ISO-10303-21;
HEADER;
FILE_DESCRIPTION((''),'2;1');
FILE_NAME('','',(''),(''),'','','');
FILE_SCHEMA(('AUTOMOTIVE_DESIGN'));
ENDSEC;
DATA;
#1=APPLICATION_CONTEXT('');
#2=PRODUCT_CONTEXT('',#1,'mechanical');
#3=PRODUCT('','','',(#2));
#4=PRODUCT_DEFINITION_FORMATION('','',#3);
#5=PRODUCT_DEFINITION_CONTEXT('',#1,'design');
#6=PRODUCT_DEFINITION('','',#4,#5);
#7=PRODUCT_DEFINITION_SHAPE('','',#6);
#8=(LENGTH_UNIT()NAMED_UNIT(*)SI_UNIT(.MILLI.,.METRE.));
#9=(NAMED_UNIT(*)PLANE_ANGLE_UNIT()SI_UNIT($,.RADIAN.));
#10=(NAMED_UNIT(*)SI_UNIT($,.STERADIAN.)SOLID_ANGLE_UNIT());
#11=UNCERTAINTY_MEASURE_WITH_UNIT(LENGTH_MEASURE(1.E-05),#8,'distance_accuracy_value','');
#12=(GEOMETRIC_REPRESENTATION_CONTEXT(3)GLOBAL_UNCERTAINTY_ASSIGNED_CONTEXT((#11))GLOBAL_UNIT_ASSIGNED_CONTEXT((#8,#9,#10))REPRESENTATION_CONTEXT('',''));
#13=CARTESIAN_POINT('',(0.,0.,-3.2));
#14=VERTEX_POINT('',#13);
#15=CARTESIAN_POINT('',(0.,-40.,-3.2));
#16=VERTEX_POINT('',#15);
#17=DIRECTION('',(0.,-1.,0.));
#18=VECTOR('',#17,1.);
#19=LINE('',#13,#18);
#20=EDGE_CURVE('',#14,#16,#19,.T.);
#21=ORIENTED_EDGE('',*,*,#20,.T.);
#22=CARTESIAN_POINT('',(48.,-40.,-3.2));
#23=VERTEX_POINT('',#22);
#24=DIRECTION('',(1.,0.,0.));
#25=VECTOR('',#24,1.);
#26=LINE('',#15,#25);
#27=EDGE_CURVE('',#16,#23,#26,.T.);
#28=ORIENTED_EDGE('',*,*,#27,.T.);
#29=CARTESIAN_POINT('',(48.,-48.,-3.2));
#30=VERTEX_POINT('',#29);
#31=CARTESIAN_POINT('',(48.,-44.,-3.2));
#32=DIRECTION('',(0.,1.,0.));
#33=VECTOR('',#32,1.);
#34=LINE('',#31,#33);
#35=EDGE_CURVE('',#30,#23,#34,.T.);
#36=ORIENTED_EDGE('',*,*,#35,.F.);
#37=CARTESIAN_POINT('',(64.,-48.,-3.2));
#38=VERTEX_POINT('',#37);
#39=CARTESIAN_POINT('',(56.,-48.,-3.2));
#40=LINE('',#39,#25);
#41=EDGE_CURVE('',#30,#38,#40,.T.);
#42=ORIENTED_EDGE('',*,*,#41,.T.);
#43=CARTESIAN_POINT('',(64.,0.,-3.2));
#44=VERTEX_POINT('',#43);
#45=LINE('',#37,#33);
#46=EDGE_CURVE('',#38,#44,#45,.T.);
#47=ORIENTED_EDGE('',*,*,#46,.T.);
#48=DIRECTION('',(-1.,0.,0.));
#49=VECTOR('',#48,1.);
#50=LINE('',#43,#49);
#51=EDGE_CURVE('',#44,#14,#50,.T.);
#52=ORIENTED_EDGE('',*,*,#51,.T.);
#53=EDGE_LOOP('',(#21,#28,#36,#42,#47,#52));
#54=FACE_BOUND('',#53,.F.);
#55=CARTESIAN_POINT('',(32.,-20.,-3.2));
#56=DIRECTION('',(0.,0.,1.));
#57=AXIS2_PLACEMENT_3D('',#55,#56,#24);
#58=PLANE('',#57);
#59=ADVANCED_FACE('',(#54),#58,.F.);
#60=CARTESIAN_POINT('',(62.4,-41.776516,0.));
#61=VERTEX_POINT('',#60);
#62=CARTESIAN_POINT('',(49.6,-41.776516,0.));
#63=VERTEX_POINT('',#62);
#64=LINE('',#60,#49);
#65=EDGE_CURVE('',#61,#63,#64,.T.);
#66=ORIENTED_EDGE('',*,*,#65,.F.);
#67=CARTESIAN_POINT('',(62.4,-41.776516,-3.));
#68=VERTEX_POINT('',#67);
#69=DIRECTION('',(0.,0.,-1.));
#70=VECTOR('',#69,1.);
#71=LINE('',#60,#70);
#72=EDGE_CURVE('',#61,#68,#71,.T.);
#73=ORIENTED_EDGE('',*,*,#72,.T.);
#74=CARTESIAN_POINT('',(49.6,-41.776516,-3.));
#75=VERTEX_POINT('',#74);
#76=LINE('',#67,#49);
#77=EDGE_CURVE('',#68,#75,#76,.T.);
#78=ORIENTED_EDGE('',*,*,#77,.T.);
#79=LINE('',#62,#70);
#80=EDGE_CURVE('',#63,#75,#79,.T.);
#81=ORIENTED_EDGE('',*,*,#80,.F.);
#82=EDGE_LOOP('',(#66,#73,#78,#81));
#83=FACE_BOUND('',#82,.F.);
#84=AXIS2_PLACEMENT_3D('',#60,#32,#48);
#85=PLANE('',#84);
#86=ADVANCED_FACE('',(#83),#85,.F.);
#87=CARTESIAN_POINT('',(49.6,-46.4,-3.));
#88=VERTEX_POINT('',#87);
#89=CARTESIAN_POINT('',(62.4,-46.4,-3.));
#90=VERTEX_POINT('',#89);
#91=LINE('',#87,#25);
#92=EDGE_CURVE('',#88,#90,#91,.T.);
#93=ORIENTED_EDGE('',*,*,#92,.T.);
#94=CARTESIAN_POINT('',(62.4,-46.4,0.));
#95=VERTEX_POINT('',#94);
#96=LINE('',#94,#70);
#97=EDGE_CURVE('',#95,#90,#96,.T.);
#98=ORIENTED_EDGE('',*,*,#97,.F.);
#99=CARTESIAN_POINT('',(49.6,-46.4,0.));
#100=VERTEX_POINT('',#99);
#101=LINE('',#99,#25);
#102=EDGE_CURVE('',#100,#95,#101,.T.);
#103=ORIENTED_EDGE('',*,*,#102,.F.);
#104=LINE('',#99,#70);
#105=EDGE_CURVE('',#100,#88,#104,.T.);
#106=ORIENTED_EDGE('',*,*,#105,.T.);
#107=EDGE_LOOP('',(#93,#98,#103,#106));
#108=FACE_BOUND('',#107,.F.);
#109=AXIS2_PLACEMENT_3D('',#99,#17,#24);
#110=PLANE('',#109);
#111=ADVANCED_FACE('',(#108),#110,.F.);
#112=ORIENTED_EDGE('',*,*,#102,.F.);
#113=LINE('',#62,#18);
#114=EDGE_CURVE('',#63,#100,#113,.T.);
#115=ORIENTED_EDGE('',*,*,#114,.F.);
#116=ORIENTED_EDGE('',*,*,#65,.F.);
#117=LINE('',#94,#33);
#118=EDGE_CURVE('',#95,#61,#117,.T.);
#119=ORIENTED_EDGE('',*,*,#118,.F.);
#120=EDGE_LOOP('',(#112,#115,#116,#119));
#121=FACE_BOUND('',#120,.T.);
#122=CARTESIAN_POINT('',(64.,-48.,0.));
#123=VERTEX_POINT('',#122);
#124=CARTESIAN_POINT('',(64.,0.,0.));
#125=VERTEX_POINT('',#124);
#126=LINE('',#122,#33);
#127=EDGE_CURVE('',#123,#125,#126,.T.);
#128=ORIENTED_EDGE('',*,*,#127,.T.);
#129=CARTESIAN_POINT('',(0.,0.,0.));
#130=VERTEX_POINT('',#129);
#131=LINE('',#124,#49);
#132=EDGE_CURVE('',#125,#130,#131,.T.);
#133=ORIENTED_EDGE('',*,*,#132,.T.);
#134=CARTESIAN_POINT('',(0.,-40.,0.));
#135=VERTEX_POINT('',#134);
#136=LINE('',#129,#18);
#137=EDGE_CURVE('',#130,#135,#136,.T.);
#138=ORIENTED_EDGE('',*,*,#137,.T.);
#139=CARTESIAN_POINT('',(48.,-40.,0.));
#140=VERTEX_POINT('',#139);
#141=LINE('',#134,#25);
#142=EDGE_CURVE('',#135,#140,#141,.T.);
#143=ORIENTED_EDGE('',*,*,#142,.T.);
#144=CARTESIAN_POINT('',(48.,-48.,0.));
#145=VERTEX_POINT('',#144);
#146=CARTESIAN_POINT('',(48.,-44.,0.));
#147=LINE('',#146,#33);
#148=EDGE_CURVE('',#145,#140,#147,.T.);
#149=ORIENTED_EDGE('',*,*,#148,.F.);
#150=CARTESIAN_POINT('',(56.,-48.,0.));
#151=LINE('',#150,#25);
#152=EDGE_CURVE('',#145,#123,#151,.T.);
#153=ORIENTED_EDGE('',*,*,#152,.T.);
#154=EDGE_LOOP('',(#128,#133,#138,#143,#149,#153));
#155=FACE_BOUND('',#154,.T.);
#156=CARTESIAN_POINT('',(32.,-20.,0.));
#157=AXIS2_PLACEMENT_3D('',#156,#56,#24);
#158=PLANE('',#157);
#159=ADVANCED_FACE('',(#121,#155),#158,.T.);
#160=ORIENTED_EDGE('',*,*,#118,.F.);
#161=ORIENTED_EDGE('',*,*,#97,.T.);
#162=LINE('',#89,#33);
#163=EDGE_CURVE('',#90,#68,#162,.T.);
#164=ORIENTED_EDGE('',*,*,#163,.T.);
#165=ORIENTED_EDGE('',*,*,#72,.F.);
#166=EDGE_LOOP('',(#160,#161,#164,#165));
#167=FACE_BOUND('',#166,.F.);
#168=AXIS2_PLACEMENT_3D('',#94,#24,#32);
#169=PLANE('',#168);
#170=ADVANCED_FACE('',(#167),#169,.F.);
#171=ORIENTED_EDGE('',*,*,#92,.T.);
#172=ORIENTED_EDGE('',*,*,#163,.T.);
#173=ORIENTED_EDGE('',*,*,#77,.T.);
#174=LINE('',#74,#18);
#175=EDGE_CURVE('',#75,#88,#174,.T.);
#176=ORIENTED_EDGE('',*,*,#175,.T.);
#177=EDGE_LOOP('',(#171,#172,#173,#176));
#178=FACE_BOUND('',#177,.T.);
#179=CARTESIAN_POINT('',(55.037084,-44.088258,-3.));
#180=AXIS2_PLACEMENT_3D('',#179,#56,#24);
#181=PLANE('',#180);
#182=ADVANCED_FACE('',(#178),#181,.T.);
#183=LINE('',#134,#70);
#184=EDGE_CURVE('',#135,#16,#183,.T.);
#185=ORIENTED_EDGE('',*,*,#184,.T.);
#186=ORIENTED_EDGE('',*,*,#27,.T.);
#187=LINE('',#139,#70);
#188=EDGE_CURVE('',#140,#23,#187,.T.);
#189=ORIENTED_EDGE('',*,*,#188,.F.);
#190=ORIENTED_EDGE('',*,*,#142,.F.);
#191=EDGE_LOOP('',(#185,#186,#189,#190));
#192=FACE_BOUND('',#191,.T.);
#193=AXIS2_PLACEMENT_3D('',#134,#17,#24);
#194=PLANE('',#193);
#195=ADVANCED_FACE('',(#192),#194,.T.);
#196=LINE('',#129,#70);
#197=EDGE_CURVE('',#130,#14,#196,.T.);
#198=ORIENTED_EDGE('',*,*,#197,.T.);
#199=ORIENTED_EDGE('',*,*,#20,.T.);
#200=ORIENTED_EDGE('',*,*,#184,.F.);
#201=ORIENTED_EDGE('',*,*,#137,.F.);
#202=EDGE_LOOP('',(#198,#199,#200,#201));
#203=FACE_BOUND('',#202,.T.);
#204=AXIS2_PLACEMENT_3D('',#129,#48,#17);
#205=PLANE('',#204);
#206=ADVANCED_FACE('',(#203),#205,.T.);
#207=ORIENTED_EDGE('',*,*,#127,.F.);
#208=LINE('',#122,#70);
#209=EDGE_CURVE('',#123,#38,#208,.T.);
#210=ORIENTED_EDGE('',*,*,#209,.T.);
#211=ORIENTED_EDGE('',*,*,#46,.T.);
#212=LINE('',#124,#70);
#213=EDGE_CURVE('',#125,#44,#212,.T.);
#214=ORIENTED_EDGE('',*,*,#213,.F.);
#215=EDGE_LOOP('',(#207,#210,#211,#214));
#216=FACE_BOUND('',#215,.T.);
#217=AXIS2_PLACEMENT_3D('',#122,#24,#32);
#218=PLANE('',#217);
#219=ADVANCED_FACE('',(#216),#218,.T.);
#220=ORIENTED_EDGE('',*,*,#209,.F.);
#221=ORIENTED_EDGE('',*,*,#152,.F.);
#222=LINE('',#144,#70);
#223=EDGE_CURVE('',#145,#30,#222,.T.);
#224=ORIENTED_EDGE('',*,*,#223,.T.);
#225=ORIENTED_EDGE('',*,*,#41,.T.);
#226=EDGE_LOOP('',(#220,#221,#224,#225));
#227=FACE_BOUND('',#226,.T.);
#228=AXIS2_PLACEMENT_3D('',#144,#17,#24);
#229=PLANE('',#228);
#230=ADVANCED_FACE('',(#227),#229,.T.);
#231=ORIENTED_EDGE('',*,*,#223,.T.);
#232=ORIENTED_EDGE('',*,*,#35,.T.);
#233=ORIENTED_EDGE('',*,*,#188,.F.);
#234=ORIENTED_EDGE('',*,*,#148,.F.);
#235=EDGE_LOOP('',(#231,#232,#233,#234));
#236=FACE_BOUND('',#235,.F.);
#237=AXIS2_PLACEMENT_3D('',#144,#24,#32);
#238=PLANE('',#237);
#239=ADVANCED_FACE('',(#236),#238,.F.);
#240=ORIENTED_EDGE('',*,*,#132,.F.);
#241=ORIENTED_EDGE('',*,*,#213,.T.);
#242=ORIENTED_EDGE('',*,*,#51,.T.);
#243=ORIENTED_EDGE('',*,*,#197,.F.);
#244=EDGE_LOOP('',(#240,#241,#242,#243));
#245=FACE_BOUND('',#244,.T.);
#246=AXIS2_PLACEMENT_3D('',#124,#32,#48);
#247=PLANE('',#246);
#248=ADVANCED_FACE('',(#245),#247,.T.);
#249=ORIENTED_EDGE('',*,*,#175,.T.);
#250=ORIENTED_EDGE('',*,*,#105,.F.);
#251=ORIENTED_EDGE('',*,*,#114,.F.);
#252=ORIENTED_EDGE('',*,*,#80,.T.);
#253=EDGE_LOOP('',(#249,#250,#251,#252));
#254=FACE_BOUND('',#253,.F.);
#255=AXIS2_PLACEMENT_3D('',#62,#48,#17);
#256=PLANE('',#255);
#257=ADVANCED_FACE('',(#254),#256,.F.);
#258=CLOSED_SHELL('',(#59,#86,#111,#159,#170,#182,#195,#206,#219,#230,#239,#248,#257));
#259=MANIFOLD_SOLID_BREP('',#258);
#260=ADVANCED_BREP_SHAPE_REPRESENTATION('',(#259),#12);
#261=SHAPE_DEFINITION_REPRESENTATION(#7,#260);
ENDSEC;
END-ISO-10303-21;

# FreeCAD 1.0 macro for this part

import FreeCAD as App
import Part
import Sketcher

V = App.Vector


def add_polygon(sketch, points):
    """Adds a closed chain of lines whose ends are joined by coincident constraints."""
    first, n = sketch.GeometryCount, len(points)
    for a, b in zip(points, points[1:] + points[:1]):
        sketch.addGeometry(Part.LineSegment(App.Vector(*a, 0), App.Vector(*b, 0)), False)
    for i in range(n):
        sketch.addConstraint(Sketcher.Constraint("Coincident", first + i, 2, first + (i + 1) % n, 1))

doc = App.newDocument("Part")
params = doc.addObject("Spreadsheet::Sheet", "Params")
for row, (alias, value) in enumerate([
    ("sketch1_width", "64 mm"),
    ("sketch1_width2", "48 mm"),
    ("sketch1_height", "40 mm"),
    ("pad1_length", "3.2 mm"),
    ("sketch2_width", "12.8 mm"),
    ("pocket1_length", "3 mm"),
], start=1):
    params.set(f"A{row}", alias)
    params.set(f"B{row}", "=" + value)
    params.setAlias(f"B{row}", alias)

body = doc.addObject("PartDesign::Body", "Body")

# Sketch on XY plane
sketch1 = doc.addObject("Sketcher::SketchObject", "Sketch")
body.addObject(sketch1)
sketch1.AttachmentSupport = (doc.XY_Plane, [""])
sketch1.MapMode = "FlatFace"
add_polygon(sketch1, [(64, 0), (0, 0), (0, -40), (48, -40), (48, -48), (64, -48)])  # lines 0-5
sketch1.addConstraint([
    Sketcher.Constraint("Horizontal", 0),
    Sketcher.Constraint("Vertical", 1),
    Sketcher.Constraint("Horizontal", 2),
    Sketcher.Constraint("Vertical", 3),
    Sketcher.Constraint("Horizontal", 4),
    Sketcher.Constraint("Vertical", 5),
    Sketcher.Constraint("Coincident", 0, 2, -1, 1),
    Sketcher.Constraint("Equal", 2, 5),
    Sketcher.Constraint("DistanceX", 0, 2, 0, 1, 64.0),
    Sketcher.Constraint("DistanceX", 2, 1, 2, 2, 48.0),
    Sketcher.Constraint("DistanceY", 1, 2, 1, 1, 40.0),
])
sketch1.setExpression("Constraints[14]", "Params.sketch1_width")
sketch1.setExpression("Constraints[15]", "Params.sketch1_width2")
sketch1.setExpression("Constraints[16]", "Params.sketch1_height")
pad1 = doc.addObject("PartDesign::Pad", "Pad")
body.addObject(pad1)
pad1.Profile = sketch1
pad1.setExpression("Length", "Params.pad1_length")
pad1.Reversed = True

# Sketch on XY plane
sketch2 = doc.addObject("Sketcher::SketchObject", "Sketch001")
body.addObject(sketch2)
sketch2.AttachmentSupport = (doc.XY_Plane, [""])
sketch2.MapMode = "FlatFace"
add_polygon(sketch2, [(49.6, -46.4), (62.4, -46.4), (62.4, -41.8), (49.6, -41.8)])  # lines 0-3
sketch2.addConstraint([
    Sketcher.Constraint("Horizontal", 0),
    Sketcher.Constraint("Vertical", 1),
    Sketcher.Constraint("Horizontal", 2),
    Sketcher.Constraint("Vertical", 3),
    Sketcher.Constraint("DistanceX", 0, 1, 0, 2, 12.8),
    Sketcher.Constraint("DistanceX", -1, 1, 0, 2, 62.4),
    Sketcher.Constraint("DistanceY", 0, 2, -1, 1, 46.4),
    Sketcher.Constraint("DistanceY", 1, 1, 1, 2, 4.623484),
])
sketch2.setExpression("Constraints[8]", "Params.sketch2_width")
pocket1 = doc.addObject("PartDesign::Pocket", "Pocket")
body.addObject(pocket1)
pocket1.Profile = sketch2
pocket1.setExpression("Length", "Params.pocket1_length")

doc.recompute()
